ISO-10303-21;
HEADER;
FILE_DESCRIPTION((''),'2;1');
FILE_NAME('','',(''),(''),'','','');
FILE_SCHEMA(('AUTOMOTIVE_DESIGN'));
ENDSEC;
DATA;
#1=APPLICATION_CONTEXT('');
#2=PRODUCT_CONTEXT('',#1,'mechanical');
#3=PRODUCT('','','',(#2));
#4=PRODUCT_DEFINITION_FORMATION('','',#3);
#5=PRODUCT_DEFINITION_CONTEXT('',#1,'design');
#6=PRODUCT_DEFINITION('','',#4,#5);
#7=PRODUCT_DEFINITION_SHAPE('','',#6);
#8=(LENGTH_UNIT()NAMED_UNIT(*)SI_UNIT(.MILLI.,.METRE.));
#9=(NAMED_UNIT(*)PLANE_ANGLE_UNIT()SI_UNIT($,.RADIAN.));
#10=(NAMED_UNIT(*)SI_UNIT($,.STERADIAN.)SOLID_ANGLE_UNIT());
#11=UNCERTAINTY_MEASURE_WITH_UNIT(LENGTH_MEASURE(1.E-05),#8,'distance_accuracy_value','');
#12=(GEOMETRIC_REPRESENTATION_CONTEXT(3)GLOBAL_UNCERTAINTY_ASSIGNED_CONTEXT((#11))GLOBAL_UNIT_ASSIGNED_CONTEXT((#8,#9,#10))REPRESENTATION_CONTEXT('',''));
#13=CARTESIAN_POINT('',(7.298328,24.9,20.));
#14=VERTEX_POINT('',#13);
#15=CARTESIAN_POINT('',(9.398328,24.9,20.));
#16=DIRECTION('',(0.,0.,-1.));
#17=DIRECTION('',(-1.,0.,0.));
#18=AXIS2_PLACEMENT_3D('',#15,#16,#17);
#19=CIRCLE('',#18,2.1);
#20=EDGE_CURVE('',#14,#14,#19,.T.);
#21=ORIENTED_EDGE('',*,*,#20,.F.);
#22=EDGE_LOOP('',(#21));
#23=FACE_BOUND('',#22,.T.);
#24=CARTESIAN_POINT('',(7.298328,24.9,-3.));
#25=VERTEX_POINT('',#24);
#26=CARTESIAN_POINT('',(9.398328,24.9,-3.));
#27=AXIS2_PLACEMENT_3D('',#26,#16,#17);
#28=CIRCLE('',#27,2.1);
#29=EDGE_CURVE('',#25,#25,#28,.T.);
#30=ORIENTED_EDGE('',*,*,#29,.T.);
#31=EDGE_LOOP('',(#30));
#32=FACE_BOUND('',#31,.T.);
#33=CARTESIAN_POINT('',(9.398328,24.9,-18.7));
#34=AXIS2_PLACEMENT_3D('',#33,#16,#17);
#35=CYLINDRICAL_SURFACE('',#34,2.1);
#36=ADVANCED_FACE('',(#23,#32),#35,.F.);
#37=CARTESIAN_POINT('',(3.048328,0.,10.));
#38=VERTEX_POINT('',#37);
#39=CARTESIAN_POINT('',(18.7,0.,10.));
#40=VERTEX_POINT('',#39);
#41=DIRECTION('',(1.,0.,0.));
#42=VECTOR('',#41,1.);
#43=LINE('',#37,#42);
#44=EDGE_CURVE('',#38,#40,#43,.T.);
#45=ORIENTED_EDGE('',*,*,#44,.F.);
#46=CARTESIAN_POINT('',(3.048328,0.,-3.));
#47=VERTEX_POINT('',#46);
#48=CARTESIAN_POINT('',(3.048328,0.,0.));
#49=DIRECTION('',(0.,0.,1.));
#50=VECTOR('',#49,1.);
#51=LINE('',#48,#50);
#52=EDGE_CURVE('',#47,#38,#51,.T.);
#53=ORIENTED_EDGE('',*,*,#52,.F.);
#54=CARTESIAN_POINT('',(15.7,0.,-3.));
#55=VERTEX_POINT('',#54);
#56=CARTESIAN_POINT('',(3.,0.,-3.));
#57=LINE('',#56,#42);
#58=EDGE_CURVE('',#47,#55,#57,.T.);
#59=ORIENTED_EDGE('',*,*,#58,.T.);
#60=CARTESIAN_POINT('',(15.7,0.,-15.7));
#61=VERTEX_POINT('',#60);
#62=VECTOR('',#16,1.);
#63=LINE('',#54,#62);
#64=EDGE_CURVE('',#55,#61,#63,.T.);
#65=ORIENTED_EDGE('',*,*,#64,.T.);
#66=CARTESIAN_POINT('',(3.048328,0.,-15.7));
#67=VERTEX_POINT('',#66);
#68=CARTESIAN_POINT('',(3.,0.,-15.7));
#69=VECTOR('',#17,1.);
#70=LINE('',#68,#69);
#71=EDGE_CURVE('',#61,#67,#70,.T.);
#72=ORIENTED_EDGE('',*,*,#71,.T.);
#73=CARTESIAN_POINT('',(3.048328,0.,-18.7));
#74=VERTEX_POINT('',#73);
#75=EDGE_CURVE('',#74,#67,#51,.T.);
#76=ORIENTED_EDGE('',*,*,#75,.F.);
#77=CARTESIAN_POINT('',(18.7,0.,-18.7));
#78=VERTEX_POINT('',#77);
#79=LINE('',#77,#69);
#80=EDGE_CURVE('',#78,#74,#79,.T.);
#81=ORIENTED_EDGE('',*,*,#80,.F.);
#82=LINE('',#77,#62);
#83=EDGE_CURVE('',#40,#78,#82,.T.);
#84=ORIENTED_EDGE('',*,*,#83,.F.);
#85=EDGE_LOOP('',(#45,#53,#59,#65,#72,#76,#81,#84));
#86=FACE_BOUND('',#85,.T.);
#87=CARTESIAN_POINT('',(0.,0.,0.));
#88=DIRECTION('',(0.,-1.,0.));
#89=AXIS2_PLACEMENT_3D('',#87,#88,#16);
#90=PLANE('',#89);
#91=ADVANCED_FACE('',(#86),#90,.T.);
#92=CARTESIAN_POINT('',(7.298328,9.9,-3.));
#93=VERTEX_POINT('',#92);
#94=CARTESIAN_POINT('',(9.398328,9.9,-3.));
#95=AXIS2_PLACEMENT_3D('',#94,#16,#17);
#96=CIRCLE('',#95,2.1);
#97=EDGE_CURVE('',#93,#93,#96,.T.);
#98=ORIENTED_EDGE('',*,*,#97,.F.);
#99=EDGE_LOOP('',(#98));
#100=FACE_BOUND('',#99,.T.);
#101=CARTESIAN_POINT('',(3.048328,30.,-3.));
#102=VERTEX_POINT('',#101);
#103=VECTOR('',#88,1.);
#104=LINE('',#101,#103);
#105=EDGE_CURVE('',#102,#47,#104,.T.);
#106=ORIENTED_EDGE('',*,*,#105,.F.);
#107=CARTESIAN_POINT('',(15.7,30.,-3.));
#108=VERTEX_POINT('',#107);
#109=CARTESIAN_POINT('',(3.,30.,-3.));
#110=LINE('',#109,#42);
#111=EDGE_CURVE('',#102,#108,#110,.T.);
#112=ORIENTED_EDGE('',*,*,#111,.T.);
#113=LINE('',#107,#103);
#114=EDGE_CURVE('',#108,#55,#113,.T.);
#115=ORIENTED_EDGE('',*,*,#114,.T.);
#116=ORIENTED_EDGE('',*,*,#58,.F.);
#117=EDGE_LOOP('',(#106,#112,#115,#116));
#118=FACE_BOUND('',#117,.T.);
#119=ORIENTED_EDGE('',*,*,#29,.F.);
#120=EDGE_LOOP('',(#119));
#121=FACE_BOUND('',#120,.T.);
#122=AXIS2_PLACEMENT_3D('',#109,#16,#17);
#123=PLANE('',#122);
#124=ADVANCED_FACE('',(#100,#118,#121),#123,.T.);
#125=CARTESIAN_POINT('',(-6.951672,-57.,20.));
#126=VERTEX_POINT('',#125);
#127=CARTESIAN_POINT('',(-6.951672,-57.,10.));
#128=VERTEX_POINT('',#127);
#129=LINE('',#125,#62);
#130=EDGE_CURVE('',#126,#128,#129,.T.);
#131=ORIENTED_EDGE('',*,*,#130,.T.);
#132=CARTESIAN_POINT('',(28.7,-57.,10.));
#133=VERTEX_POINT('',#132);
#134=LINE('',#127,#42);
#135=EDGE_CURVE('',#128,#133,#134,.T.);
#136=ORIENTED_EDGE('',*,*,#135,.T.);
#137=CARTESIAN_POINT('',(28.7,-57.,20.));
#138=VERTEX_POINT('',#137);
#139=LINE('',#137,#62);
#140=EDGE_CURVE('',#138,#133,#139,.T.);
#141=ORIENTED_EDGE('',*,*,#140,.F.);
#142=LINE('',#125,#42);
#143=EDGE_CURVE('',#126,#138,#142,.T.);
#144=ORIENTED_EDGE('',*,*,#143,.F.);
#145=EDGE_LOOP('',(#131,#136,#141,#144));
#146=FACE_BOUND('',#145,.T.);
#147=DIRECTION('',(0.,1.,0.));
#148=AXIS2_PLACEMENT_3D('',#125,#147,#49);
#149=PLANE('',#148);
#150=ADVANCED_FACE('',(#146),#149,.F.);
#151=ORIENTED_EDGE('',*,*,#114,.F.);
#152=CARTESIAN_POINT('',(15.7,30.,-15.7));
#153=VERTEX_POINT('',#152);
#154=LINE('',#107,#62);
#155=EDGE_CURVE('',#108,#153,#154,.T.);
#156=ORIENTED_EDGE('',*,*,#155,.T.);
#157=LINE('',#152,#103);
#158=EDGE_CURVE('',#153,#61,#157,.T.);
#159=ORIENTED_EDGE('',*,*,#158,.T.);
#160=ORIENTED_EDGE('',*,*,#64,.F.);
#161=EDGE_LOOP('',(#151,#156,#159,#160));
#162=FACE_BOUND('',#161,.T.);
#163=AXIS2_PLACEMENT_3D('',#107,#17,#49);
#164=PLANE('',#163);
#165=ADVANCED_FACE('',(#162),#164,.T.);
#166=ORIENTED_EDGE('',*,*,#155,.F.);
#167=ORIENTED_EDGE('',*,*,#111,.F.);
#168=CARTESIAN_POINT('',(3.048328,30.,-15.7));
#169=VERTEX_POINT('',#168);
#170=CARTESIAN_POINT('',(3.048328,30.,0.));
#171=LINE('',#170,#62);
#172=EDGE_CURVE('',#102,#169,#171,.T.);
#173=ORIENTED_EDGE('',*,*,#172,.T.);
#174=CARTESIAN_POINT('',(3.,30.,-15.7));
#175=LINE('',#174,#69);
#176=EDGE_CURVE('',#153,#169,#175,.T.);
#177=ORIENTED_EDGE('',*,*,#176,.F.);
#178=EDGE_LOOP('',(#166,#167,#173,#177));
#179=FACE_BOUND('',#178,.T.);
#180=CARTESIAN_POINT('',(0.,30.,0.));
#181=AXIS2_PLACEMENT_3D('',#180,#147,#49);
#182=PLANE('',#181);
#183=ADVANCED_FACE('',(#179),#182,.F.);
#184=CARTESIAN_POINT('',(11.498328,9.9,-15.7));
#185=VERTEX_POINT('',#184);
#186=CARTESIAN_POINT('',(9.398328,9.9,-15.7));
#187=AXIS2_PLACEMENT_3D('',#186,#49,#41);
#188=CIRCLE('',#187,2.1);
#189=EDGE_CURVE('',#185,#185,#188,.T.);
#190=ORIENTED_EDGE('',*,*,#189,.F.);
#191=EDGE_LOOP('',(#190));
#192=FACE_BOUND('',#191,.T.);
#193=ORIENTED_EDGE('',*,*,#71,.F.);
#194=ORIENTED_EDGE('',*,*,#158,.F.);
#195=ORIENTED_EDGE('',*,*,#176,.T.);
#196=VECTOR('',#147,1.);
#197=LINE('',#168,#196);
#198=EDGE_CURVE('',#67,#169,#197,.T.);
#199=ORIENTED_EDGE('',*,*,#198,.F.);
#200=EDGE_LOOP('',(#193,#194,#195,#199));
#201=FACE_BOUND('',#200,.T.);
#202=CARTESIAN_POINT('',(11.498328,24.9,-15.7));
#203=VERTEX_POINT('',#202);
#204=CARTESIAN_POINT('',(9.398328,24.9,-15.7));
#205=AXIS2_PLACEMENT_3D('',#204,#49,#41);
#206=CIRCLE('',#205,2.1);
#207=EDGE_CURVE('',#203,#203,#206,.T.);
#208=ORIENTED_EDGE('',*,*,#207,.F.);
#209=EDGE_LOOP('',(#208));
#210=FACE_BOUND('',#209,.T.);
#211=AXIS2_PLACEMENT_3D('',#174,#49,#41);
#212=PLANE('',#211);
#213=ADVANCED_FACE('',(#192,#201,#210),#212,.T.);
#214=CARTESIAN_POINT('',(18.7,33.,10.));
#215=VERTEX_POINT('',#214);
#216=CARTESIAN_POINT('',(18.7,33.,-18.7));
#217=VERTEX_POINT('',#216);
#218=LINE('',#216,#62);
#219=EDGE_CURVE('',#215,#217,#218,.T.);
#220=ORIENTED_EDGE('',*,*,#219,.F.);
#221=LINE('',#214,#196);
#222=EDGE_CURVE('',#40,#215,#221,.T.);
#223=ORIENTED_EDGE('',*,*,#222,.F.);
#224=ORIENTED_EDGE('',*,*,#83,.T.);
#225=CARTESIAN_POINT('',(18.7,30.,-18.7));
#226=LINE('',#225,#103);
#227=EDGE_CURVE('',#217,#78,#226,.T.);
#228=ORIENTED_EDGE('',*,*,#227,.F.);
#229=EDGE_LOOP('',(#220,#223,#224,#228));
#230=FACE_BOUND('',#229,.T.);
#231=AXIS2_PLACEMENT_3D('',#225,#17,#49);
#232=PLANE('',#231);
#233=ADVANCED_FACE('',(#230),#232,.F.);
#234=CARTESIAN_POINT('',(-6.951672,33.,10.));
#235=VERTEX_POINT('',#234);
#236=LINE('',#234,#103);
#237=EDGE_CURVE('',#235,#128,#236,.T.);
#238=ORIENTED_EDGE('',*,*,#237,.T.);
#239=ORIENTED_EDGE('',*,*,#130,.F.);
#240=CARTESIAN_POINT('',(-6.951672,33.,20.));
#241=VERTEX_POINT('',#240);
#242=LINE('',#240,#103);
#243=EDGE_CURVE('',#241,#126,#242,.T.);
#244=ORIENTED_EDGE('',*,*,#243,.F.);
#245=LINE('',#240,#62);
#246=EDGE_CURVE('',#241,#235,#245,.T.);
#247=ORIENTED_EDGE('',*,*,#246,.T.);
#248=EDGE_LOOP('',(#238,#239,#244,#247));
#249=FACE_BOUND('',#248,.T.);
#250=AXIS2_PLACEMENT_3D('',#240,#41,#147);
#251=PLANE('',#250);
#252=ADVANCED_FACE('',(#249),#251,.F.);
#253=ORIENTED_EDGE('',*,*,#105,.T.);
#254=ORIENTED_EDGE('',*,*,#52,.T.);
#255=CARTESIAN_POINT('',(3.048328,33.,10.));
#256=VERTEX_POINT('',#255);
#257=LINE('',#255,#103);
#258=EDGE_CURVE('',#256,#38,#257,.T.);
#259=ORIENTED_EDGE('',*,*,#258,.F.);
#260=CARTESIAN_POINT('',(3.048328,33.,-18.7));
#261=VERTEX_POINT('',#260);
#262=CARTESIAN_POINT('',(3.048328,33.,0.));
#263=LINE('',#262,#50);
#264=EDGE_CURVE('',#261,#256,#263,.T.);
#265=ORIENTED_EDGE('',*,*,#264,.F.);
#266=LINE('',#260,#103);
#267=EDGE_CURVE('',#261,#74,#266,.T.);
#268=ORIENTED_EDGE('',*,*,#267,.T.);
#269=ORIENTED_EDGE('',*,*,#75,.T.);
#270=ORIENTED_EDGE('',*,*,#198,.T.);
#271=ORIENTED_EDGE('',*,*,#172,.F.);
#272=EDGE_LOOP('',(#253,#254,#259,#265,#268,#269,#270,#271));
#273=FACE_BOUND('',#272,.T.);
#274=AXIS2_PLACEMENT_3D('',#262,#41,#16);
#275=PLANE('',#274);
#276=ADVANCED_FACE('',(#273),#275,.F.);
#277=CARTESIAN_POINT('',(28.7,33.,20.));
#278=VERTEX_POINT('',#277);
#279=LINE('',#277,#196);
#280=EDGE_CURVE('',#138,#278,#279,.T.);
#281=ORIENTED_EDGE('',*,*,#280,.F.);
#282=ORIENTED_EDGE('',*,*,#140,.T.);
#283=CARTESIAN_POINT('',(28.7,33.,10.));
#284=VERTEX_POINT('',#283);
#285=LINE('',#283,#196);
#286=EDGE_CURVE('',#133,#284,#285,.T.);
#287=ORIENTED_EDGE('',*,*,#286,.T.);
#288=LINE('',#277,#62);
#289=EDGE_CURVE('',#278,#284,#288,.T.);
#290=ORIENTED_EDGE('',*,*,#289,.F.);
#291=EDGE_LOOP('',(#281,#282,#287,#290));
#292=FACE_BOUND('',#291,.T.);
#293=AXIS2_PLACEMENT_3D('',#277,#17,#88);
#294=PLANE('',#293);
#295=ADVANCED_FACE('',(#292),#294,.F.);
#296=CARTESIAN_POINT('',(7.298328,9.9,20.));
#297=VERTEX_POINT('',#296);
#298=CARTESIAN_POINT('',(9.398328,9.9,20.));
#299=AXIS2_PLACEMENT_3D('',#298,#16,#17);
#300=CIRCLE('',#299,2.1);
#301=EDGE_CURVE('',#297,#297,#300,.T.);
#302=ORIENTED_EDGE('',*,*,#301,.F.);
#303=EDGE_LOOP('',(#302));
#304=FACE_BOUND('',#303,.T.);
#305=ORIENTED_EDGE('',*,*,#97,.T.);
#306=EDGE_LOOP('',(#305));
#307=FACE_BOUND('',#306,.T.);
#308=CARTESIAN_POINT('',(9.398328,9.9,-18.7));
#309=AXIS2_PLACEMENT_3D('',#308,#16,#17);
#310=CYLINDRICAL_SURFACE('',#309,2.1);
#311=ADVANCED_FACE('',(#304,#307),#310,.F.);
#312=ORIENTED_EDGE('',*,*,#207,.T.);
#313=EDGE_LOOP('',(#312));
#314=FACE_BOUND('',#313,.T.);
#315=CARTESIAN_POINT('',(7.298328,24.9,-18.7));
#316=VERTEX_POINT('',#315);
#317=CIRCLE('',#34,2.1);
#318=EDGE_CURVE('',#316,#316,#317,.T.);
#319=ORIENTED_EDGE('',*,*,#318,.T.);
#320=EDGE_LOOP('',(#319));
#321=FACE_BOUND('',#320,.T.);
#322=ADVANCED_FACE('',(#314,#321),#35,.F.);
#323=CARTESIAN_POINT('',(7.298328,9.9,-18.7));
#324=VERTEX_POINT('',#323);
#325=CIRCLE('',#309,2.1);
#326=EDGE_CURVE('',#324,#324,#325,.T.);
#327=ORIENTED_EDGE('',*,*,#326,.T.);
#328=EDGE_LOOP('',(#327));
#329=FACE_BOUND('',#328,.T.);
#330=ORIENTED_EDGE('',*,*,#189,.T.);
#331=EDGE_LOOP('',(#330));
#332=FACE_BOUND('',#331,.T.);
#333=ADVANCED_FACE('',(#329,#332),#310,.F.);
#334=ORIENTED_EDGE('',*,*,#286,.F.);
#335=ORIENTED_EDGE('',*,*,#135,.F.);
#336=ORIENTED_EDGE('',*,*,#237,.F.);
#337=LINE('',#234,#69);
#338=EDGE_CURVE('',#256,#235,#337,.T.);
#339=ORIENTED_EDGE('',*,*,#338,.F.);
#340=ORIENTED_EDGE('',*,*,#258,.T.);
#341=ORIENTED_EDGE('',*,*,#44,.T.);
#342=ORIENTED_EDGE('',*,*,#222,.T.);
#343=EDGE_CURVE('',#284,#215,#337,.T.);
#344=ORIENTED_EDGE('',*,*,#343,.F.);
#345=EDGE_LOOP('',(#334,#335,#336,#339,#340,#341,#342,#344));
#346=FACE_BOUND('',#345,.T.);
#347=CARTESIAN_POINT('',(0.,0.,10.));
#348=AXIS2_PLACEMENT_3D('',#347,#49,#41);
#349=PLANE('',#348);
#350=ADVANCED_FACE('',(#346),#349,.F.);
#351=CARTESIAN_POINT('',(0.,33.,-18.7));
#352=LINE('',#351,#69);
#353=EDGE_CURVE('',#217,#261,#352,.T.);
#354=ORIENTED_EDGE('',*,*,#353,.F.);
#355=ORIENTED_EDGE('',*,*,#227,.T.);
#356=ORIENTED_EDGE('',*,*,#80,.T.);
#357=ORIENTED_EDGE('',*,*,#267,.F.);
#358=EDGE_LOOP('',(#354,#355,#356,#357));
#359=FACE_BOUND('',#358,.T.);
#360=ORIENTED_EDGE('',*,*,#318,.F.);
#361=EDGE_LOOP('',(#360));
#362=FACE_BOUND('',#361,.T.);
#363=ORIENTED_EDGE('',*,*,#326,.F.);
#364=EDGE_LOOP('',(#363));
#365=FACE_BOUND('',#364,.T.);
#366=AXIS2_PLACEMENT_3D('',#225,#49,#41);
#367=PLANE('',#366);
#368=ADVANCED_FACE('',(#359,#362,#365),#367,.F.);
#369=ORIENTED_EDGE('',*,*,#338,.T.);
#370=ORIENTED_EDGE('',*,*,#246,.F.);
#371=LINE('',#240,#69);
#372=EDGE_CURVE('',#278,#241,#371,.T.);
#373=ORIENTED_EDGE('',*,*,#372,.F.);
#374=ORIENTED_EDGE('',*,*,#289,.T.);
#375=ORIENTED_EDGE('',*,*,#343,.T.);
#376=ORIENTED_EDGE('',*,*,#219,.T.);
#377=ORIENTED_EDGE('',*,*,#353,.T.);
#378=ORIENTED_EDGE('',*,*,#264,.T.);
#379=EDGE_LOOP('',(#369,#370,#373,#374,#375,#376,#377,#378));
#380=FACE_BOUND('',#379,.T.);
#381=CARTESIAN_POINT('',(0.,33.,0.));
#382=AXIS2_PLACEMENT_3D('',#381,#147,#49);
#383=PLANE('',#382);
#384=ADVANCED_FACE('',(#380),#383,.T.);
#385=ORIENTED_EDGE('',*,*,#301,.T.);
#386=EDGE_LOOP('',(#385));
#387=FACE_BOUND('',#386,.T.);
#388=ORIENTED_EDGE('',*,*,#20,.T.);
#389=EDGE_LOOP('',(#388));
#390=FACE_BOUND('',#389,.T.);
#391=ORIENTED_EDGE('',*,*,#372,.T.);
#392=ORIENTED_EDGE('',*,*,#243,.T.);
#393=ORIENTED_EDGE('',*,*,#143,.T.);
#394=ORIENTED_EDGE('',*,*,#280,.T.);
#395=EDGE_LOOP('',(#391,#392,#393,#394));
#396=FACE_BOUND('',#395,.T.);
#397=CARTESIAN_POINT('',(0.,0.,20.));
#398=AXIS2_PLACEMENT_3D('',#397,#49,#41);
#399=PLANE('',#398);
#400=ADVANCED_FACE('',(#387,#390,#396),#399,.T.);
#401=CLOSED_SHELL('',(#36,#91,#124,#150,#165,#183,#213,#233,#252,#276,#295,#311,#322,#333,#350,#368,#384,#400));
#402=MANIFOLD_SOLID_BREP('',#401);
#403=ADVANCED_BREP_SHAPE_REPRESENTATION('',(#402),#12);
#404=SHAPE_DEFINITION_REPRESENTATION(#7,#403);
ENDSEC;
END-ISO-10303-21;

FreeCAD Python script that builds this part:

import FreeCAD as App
import Part
import Sketcher
Q = App.Units.Quantity


def add_polygon(sketch, points):
    """Adds a closed chain of lines whose ends are joined by coincident constraints."""
    first, n = sketch.GeometryCount, len(points)
    for a, b in zip(points, points[1:] + points[:1]):
        sketch.addGeometry(Part.LineSegment(App.Vector(*a, 0), App.Vector(*b, 0)), False)
    for i in range(n):
        sketch.addConstraint(Sketcher.Constraint("Coincident", first + i, 2, first + (i + 1) % n, 1))

doc = App.newDocument("Part")
body = doc.addObject("PartDesign::Body", "Body")

sketch1 = body.newObject("Sketcher::SketchObject", "Sketch")
sketch1.AttachmentSupport = (doc.getObject("XZ_Plane"), [""])
sketch1.MapMode = "FlatFace"
add_polygon(sketch1, [(0, -18.7), (0, 0), (18.7, 0), (18.7, -18.7)])
add_polygon(sketch1, [(15.7, -3), (3, -3), (3, -15.7), (15.7, -15.7)])
sketch1.addConstraint([
    Sketcher.Constraint("Vertical", 0),
    Sketcher.Constraint("Horizontal", 1),
    Sketcher.Constraint("Vertical", 2),
    Sketcher.Constraint("Horizontal", 3),
    Sketcher.Constraint("Horizontal", 4),
    Sketcher.Constraint("Vertical", 5),
    Sketcher.Constraint("Horizontal", 6),
    Sketcher.Constraint("Vertical", 7),
    Sketcher.Constraint("Coincident", 0, 2, -1, 1),
    Sketcher.Constraint("Equal", 3, 0),
    Sketcher.Constraint("Equal", 6, 5),
    Sketcher.Constraint("DistanceX", 1, 1, 1, 2, Q("18.7 mm")),
    Sketcher.Constraint("DistanceX", 4, 2, 4, 1, Q("12.7 mm")),
    Sketcher.Constraint("DistanceX", -1, 1, 4, 2, Q("3 mm")),
    Sketcher.Constraint("DistanceY", 4, 2, -1, 1, Q("3 mm")),
])
pad1 = body.newObject("PartDesign::Pad", "Pad")
pad1.Profile = sketch1
pad1.Length = 30
pad1.Reversed = True

sketch2 = body.newObject("Sketcher::SketchObject", "Sketch001")
sketch2.AttachmentSupport = (doc.getObject("XZ_Plane"), [""])
sketch2.MapMode = "FlatFace"
sketch2.AttachmentOffset = App.Placement(App.Vector(0, 0, -30), App.Rotation())
add_polygon(sketch2, [(0, -18.7), (0, 0), (18.7, 0), (18.7, -18.7)])
sketch2.addConstraint([
    Sketcher.Constraint("Vertical", 0),
    Sketcher.Constraint("Horizontal", 1),
    Sketcher.Constraint("Vertical", 2),
    Sketcher.Constraint("Horizontal", 3),
    Sketcher.Constraint("Coincident", 0, 2, -1, 1),
    Sketcher.Constraint("Equal", 3, 0),
    Sketcher.Constraint("DistanceX", 1, 1, 1, 2, Q("18.7 mm")),
])
pad2 = body.newObject("PartDesign::Pad", "Pad001")
pad2.Profile = sketch2
pad2.Length = 3
pad2.Reversed = True

sketch3 = body.newObject("Sketcher::SketchObject", "Sketch002")
sketch3.AttachmentSupport = (doc.getObject("XZ_Plane"), [""])
sketch3.MapMode = "FlatFace"
add_polygon(sketch3, [(0, 0), (0, -18.7), (3.048328, -18.7), (3.048328, 0)])
sketch3.addConstraint([
    Sketcher.Constraint("Vertical", 0),
    Sketcher.Constraint("Horizontal", 1),
    Sketcher.Constraint("Vertical", 2),
    Sketcher.Constraint("Horizontal", 3),
    Sketcher.Constraint("Coincident", 3, 2, -1, 1),
    Sketcher.Constraint("DistanceY", 0, 2, 0, 1, Q("18.7 mm")),
    Sketcher.Constraint("DistanceX", 1, 1, 1, 2, Q("3.048328 mm")),
])
pocket1 = body.newObject("PartDesign::Pocket", "Pocket")
pocket1.Profile = sketch3
pocket1.Length = 33

sketch4 = body.newObject("Sketcher::SketchObject", "Sketch003")
sketch4.AttachmentSupport = (doc.getObject("XY_Plane"), [""])
sketch4.MapMode = "FlatFace"
add_polygon(sketch4, [(3.048328, 33), (3.048328, 0), (18.7, 0), (18.7, 33)])
sketch4.addConstraint([
    Sketcher.Constraint("Vertical", 0),
    Sketcher.Constraint("Horizontal", 1),
    Sketcher.Constraint("Vertical", 2),
    Sketcher.Constraint("Horizontal", 3),
    Sketcher.Constraint("PointOnObject", 0, 2, -1),
    Sketcher.Constraint("DistanceY", 0, 2, 0, 1, Q("33 mm")),
    Sketcher.Constraint("DistanceX", -1, 1, 1, 2, Q("18.7 mm")),
    Sketcher.Constraint("DistanceX", 1, 1, 1, 2, Q("15.651672 mm")),
])
pad3 = body.newObject("PartDesign::Pad", "Pad002")
pad3.Profile = sketch4
pad3.Length = 10

sketch5 = body.newObject("Sketcher::SketchObject", "Sketch004")
sketch5.AttachmentSupport = (doc.getObject("XY_Plane"), [""])
sketch5.MapMode = "FlatFace"
sketch5.AttachmentOffset = App.Placement(App.Vector(0, 0, 10), App.Rotation())
add_polygon(sketch5, [(-6.951672, 33), (-6.951672, -57), (28.7, -57), (28.7, 33)])
sketch5.addConstraint([
    Sketcher.Constraint("Vertical", 0),
    Sketcher.Constraint("Horizontal", 1),
    Sketcher.Constraint("Vertical", 2),
    Sketcher.Constraint("Horizontal", 3),
    Sketcher.Constraint("DistanceY", 0, 2, 0, 1, Q("90 mm")),
    Sketcher.Constraint("DistanceY", 0, 2, -1, 1, Q("57 mm")),
    Sketcher.Constraint("DistanceX", -1, 1, 1, 2, Q("28.7 mm")),
    Sketcher.Constraint("DistanceX", 1, 1, 1, 2, Q("35.651672 mm")),
])
pad4 = body.newObject("PartDesign::Pad", "Pad003")
pad4.Profile = sketch5
pad4.Length = 10

sketch6 = body.newObject("Sketcher::SketchObject", "Sketch005")
sketch6.AttachmentSupport = (doc.getObject("XY_Plane"), [""])
sketch6.MapMode = "FlatFace"
sketch6.AttachmentOffset = App.Placement(App.Vector(0, 0, -18.7), App.Rotation())
sketch6.addGeometry([
    Part.Circle(App.Vector(9.398328, 24.9, 0), App.Vector(0, 0, 1), 2.1),
    Part.Circle(App.Vector(9.398328, 9.9, 0), App.Vector(0, 0, 1), 2.1),
], False)
sketch6.addConstraint([
    Sketcher.Constraint("Equal", 0, 1),
    Sketcher.Constraint("Vertical", 0, 3, 1, 3),
    Sketcher.Constraint("Diameter", 0, Q("4.2 mm")),
    Sketcher.Constraint("DistanceY", 1, 3, 0, 3, Q("15 mm")),
    Sketcher.Constraint("DistanceY", -1, 1, 0, 3, Q("24.9 mm")),
    Sketcher.Constraint("DistanceX", -1, 1, 0, 3, Q("9.398328 mm")),
])
doc.recompute()
hole = body.newObject("PartDesign::Hole", "Hole")
hole.Profile = sketch6
hole.ThreadType = "None"
hole.Diameter = 4.2
hole.DepthType = "ThroughAll"
hole.Reversed = True

doc.recompute()
